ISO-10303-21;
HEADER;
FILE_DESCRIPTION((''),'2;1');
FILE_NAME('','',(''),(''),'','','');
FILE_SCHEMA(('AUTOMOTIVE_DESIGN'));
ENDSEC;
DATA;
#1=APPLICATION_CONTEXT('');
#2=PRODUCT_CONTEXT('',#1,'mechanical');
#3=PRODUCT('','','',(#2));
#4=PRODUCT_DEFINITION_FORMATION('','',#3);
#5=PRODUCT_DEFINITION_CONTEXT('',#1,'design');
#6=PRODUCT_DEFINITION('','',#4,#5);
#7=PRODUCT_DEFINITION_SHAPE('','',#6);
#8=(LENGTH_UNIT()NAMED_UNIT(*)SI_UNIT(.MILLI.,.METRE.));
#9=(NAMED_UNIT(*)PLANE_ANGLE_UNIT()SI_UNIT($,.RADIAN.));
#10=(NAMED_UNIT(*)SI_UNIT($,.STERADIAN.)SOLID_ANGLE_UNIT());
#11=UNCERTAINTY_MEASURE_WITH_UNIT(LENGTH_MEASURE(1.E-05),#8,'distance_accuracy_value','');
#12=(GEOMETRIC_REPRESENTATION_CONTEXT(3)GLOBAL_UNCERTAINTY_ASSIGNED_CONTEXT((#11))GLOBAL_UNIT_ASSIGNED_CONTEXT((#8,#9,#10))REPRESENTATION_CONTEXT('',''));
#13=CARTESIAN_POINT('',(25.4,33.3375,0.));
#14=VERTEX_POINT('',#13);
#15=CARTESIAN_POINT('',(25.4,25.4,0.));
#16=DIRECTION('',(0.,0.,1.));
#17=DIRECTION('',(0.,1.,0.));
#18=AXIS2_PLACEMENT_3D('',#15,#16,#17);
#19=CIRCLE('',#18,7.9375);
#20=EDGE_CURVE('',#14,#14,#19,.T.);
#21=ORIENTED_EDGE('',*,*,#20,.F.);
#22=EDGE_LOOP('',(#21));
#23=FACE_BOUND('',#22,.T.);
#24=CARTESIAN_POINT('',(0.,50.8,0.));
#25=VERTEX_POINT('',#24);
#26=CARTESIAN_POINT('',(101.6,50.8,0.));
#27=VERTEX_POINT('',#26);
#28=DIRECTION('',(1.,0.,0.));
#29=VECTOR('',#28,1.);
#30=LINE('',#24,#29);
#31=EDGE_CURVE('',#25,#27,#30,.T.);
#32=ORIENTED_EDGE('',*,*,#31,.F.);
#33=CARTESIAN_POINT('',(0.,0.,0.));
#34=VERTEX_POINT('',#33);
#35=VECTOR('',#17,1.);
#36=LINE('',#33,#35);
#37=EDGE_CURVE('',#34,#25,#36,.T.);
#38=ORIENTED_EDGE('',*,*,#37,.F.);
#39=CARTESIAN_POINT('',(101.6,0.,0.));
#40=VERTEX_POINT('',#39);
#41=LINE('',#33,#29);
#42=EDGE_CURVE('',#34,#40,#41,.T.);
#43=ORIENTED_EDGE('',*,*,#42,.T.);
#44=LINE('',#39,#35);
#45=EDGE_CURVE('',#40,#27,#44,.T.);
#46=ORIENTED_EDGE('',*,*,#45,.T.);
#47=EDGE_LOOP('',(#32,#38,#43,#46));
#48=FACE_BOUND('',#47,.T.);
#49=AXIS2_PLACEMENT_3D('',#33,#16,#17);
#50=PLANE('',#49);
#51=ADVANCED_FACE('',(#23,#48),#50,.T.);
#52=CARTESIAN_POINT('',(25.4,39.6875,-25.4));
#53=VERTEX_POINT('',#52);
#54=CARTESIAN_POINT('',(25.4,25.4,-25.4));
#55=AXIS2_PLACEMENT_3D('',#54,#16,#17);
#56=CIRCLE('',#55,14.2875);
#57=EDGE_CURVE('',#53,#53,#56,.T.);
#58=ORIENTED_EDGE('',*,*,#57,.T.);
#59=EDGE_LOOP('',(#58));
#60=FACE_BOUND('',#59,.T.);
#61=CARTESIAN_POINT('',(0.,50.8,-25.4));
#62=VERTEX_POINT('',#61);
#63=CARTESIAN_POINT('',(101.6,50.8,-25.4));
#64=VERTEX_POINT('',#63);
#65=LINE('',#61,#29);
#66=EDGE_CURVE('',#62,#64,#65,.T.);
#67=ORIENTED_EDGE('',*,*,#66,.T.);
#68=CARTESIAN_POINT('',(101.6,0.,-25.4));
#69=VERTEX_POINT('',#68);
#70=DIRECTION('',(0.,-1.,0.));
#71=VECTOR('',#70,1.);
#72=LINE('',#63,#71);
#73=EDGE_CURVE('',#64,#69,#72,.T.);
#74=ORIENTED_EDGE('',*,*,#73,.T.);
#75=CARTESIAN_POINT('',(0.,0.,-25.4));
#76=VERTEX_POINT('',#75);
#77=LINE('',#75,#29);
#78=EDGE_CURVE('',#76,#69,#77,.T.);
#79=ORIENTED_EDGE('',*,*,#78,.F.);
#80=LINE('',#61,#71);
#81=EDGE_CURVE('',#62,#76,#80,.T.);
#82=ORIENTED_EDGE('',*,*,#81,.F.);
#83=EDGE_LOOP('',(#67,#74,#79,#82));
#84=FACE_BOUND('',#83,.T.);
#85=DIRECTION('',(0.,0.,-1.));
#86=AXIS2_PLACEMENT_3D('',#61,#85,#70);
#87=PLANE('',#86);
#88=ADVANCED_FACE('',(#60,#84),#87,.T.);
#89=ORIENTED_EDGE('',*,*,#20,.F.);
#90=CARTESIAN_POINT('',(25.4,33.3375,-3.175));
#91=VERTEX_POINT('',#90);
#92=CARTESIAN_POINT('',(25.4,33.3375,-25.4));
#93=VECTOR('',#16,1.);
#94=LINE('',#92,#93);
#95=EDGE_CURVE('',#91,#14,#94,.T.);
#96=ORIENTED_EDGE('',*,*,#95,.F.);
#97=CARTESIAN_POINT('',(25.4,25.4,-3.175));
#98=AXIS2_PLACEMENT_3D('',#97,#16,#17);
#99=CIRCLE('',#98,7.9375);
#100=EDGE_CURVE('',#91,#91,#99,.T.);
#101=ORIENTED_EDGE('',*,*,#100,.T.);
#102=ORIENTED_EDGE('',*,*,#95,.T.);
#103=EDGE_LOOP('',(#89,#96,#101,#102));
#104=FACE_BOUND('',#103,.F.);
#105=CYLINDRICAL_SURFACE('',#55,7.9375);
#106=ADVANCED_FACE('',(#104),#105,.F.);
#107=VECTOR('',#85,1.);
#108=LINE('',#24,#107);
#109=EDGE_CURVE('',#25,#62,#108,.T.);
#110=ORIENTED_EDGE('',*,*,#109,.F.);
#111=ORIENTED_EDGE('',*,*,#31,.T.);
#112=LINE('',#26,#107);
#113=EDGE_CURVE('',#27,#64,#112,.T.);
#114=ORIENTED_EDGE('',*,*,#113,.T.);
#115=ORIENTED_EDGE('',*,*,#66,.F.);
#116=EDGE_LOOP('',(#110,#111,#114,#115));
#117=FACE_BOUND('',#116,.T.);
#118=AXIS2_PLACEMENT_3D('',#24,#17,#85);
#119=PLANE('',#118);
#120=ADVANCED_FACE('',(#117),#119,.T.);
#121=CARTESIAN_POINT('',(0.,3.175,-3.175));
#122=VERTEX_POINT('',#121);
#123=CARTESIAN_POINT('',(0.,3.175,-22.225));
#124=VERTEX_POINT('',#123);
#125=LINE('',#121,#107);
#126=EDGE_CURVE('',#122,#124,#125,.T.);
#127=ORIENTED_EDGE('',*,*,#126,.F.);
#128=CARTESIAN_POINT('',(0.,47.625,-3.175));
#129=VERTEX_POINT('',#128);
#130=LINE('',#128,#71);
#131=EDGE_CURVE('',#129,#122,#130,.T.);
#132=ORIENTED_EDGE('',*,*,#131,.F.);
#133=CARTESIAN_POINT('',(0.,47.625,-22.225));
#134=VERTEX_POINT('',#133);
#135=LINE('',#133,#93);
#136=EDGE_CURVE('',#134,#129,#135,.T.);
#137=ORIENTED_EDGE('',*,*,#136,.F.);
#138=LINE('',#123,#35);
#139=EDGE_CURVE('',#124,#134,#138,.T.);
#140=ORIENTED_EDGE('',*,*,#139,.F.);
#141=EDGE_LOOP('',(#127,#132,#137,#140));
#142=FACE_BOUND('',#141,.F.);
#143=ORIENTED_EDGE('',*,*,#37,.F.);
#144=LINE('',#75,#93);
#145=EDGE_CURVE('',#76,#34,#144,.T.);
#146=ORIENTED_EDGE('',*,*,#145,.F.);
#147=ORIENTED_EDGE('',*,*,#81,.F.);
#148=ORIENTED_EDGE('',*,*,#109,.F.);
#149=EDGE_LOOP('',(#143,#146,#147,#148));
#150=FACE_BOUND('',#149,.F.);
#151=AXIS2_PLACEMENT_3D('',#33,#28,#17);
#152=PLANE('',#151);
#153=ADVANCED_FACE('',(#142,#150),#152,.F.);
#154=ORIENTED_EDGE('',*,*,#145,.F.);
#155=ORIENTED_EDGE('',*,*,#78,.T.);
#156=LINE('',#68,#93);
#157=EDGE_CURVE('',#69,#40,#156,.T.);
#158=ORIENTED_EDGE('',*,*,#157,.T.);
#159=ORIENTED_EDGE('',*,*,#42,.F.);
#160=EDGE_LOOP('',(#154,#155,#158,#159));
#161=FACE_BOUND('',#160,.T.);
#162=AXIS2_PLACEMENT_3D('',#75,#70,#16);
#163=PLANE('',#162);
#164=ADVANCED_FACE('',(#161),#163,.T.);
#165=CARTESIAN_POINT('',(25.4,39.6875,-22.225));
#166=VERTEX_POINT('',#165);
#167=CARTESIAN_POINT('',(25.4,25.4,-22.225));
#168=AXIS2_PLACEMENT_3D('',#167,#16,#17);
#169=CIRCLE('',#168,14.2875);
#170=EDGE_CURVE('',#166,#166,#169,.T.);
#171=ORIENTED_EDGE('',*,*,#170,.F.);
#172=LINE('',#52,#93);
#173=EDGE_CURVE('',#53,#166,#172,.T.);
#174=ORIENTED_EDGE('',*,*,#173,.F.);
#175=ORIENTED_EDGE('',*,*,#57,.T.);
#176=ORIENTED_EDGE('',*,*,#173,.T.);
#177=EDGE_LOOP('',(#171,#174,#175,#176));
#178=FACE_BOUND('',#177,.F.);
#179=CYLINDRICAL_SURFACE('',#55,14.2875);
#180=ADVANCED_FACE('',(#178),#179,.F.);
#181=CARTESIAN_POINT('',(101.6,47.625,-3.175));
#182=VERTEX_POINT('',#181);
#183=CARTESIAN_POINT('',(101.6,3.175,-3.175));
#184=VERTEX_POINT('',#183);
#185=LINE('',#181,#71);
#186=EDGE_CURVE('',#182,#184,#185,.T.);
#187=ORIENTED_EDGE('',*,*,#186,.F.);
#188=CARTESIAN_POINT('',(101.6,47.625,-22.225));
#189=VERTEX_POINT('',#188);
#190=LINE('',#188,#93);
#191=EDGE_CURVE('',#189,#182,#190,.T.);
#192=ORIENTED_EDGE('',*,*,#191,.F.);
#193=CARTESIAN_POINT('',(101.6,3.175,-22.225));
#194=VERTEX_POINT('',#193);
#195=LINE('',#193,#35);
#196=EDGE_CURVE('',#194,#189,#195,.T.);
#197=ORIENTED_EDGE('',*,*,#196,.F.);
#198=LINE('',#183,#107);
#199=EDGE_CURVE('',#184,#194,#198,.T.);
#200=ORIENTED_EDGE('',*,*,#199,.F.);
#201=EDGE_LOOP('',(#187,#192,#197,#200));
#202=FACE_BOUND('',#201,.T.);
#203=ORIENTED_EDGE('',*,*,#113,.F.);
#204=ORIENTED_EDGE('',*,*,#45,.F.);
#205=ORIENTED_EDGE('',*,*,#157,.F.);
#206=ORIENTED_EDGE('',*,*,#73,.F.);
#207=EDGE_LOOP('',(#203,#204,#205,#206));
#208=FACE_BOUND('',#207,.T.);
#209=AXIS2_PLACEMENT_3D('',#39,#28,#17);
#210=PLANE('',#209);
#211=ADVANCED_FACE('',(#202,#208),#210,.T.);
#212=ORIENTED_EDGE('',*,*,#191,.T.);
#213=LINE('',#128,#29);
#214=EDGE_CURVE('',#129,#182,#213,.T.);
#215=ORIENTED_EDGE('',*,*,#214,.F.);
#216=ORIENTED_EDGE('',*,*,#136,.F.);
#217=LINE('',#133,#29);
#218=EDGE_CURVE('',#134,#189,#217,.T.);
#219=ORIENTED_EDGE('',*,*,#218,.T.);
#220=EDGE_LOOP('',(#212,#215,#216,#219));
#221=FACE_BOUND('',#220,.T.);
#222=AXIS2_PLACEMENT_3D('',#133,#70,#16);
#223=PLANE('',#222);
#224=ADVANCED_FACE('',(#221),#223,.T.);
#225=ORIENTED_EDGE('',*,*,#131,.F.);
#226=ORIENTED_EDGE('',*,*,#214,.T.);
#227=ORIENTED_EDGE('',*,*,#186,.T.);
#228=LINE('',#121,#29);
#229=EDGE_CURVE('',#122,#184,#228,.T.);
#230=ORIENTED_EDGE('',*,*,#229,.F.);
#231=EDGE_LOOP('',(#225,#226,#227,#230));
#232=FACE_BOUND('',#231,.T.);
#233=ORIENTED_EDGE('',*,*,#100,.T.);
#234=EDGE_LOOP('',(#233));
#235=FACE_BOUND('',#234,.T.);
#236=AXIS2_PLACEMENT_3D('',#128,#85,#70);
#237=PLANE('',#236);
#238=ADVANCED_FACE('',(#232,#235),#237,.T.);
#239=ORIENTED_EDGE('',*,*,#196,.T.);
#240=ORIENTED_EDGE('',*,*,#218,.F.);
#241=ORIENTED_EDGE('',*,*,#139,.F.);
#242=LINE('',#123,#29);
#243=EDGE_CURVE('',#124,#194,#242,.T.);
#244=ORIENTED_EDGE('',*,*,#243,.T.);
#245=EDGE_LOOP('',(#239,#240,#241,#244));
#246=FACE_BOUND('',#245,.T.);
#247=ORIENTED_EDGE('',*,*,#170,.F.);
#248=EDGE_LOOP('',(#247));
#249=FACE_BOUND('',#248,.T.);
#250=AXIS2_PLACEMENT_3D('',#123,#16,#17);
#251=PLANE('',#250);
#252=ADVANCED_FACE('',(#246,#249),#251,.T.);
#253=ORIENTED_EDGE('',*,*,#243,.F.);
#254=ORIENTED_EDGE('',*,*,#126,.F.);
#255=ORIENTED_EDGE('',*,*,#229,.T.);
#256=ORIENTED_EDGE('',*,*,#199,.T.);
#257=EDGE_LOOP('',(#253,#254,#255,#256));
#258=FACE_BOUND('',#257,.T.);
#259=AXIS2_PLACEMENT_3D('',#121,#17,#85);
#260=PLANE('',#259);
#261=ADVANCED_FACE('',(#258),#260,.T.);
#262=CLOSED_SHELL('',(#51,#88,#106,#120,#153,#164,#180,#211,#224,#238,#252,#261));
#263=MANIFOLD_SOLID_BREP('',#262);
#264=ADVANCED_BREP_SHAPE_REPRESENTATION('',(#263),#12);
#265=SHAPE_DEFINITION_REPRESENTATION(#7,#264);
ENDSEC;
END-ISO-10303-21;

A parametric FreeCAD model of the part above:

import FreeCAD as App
import Part
import Sketcher
Q = App.Units.Quantity


def add_polygon(sketch, points):
    """Adds a closed chain of lines whose ends are joined by coincident constraints."""
    first, n = sketch.GeometryCount, len(points)
    for a, b in zip(points, points[1:] + points[:1]):
        sketch.addGeometry(Part.LineSegment(App.Vector(*a, 0), App.Vector(*b, 0)), False)
    for i in range(n):
        sketch.addConstraint(Sketcher.Constraint("Coincident", first + i, 2, first + (i + 1) % n, 1))

doc = App.newDocument("Part")
body = doc.addObject("PartDesign::Body", "Body")

sketch1 = body.newObject("Sketcher::SketchObject", "Sketch")
sketch1.AttachmentSupport = (doc.getObject("YZ_Plane"), [""])
sketch1.MapMode = "FlatFace"
add_polygon(sketch1, [(51, 0), (0, 0), (0, -25), (51, -25)])
add_polygon(sketch1, [(3, -3), (48, -3), (48, -22), (3, -22)])
sketch1.addConstraint([
    Sketcher.Constraint("Horizontal", 0),
    Sketcher.Constraint("Vertical", 1),
    Sketcher.Constraint("Horizontal", 2),
    Sketcher.Constraint("Vertical", 3),
    Sketcher.Constraint("Horizontal", 4),
    Sketcher.Constraint("Vertical", 5),
    Sketcher.Constraint("Horizontal", 6),
    Sketcher.Constraint("Vertical", 7),
    Sketcher.Constraint("Coincident", 0, 2, -1, 1),
    Sketcher.Constraint("DistanceX", 0, 2, 0, 1, Q("2 in")),
    Sketcher.Constraint("DistanceY", 1, 2, 1, 1, Q("1 in")),
    Sketcher.Constraint("DistanceY", 4, 2, -1, 1, Q("0.125 in")),
    Sketcher.Constraint("DistanceX", -1, 1, 6, 2, Q("0.125 in")),
    Sketcher.Constraint("DistanceX", 4, 2, 3, 2, Q("0.125 in")),
    Sketcher.Constraint("DistanceY", 2, 2, 5, 2, Q("0.125 in")),
])
pad1 = body.newObject("PartDesign::Pad", "Pad")
pad1.Profile = sketch1
pad1.Length = Q("4 in")

sketch2 = body.newObject("Sketcher::SketchObject", "Sketch001")
sketch2.AttachmentSupport = (doc.getObject("XY_Plane"), [""])
sketch2.MapMode = "FlatFace"
sketch2.AttachmentOffset = App.Placement(App.Vector(0, 0, -1 * 25.4), App.Rotation())
sketch2.addGeometry(Part.Circle(App.Vector(25, 25, 0), App.Vector(0, 0, 1), 14), False)
sketch2.addConstraint([
    Sketcher.Constraint("Diameter", 0, Q("1.125 in")),
    Sketcher.Constraint("DistanceX", -1, 1, 0, 3, Q("1 in")),
    Sketcher.Constraint("DistanceY", -1, 1, 0, 3, Q("1 in")),
])
doc.recompute()
hole = body.newObject("PartDesign::Hole", "Hole")
hole.Profile = sketch2
hole.ThreadType = "None"
hole.Diameter = Q("1.125 in")
hole.DepthType = "Dimension"
hole.Depth = Q("0.125 in")
hole.DrillPoint = "Angled"
hole.DrillPointAngle = 118
hole.Reversed = True

sketch3 = body.newObject("Sketcher::SketchObject", "Sketch002")
sketch3.AttachmentSupport = (doc.getObject("XY_Plane"), [""])
sketch3.MapMode = "FlatFace"
sketch3.AttachmentOffset = App.Placement(App.Vector(0, 0, -1 * 25.4), App.Rotation())
sketch3.addGeometry(Part.Circle(App.Vector(25, 25, 0), App.Vector(0, 0, 1), 8), False)
sketch3.addConstraint([
    Sketcher.Constraint("Diameter", 0, Q("0.625 in")),
    Sketcher.Constraint("DistanceX", -1, 1, 0, 3, Q("1 in")),
    Sketcher.Constraint("DistanceY", -1, 1, 0, 3, Q("1 in")),
])
doc.recompute()
hole2 = body.newObject("PartDesign::Hole", "Hole001")
hole2.Profile = sketch3
hole2.ThreadType = "None"
hole2.Diameter = Q("0.625 in")
hole2.DepthType = "ThroughAll"
hole2.Reversed = True

doc.recompute()
